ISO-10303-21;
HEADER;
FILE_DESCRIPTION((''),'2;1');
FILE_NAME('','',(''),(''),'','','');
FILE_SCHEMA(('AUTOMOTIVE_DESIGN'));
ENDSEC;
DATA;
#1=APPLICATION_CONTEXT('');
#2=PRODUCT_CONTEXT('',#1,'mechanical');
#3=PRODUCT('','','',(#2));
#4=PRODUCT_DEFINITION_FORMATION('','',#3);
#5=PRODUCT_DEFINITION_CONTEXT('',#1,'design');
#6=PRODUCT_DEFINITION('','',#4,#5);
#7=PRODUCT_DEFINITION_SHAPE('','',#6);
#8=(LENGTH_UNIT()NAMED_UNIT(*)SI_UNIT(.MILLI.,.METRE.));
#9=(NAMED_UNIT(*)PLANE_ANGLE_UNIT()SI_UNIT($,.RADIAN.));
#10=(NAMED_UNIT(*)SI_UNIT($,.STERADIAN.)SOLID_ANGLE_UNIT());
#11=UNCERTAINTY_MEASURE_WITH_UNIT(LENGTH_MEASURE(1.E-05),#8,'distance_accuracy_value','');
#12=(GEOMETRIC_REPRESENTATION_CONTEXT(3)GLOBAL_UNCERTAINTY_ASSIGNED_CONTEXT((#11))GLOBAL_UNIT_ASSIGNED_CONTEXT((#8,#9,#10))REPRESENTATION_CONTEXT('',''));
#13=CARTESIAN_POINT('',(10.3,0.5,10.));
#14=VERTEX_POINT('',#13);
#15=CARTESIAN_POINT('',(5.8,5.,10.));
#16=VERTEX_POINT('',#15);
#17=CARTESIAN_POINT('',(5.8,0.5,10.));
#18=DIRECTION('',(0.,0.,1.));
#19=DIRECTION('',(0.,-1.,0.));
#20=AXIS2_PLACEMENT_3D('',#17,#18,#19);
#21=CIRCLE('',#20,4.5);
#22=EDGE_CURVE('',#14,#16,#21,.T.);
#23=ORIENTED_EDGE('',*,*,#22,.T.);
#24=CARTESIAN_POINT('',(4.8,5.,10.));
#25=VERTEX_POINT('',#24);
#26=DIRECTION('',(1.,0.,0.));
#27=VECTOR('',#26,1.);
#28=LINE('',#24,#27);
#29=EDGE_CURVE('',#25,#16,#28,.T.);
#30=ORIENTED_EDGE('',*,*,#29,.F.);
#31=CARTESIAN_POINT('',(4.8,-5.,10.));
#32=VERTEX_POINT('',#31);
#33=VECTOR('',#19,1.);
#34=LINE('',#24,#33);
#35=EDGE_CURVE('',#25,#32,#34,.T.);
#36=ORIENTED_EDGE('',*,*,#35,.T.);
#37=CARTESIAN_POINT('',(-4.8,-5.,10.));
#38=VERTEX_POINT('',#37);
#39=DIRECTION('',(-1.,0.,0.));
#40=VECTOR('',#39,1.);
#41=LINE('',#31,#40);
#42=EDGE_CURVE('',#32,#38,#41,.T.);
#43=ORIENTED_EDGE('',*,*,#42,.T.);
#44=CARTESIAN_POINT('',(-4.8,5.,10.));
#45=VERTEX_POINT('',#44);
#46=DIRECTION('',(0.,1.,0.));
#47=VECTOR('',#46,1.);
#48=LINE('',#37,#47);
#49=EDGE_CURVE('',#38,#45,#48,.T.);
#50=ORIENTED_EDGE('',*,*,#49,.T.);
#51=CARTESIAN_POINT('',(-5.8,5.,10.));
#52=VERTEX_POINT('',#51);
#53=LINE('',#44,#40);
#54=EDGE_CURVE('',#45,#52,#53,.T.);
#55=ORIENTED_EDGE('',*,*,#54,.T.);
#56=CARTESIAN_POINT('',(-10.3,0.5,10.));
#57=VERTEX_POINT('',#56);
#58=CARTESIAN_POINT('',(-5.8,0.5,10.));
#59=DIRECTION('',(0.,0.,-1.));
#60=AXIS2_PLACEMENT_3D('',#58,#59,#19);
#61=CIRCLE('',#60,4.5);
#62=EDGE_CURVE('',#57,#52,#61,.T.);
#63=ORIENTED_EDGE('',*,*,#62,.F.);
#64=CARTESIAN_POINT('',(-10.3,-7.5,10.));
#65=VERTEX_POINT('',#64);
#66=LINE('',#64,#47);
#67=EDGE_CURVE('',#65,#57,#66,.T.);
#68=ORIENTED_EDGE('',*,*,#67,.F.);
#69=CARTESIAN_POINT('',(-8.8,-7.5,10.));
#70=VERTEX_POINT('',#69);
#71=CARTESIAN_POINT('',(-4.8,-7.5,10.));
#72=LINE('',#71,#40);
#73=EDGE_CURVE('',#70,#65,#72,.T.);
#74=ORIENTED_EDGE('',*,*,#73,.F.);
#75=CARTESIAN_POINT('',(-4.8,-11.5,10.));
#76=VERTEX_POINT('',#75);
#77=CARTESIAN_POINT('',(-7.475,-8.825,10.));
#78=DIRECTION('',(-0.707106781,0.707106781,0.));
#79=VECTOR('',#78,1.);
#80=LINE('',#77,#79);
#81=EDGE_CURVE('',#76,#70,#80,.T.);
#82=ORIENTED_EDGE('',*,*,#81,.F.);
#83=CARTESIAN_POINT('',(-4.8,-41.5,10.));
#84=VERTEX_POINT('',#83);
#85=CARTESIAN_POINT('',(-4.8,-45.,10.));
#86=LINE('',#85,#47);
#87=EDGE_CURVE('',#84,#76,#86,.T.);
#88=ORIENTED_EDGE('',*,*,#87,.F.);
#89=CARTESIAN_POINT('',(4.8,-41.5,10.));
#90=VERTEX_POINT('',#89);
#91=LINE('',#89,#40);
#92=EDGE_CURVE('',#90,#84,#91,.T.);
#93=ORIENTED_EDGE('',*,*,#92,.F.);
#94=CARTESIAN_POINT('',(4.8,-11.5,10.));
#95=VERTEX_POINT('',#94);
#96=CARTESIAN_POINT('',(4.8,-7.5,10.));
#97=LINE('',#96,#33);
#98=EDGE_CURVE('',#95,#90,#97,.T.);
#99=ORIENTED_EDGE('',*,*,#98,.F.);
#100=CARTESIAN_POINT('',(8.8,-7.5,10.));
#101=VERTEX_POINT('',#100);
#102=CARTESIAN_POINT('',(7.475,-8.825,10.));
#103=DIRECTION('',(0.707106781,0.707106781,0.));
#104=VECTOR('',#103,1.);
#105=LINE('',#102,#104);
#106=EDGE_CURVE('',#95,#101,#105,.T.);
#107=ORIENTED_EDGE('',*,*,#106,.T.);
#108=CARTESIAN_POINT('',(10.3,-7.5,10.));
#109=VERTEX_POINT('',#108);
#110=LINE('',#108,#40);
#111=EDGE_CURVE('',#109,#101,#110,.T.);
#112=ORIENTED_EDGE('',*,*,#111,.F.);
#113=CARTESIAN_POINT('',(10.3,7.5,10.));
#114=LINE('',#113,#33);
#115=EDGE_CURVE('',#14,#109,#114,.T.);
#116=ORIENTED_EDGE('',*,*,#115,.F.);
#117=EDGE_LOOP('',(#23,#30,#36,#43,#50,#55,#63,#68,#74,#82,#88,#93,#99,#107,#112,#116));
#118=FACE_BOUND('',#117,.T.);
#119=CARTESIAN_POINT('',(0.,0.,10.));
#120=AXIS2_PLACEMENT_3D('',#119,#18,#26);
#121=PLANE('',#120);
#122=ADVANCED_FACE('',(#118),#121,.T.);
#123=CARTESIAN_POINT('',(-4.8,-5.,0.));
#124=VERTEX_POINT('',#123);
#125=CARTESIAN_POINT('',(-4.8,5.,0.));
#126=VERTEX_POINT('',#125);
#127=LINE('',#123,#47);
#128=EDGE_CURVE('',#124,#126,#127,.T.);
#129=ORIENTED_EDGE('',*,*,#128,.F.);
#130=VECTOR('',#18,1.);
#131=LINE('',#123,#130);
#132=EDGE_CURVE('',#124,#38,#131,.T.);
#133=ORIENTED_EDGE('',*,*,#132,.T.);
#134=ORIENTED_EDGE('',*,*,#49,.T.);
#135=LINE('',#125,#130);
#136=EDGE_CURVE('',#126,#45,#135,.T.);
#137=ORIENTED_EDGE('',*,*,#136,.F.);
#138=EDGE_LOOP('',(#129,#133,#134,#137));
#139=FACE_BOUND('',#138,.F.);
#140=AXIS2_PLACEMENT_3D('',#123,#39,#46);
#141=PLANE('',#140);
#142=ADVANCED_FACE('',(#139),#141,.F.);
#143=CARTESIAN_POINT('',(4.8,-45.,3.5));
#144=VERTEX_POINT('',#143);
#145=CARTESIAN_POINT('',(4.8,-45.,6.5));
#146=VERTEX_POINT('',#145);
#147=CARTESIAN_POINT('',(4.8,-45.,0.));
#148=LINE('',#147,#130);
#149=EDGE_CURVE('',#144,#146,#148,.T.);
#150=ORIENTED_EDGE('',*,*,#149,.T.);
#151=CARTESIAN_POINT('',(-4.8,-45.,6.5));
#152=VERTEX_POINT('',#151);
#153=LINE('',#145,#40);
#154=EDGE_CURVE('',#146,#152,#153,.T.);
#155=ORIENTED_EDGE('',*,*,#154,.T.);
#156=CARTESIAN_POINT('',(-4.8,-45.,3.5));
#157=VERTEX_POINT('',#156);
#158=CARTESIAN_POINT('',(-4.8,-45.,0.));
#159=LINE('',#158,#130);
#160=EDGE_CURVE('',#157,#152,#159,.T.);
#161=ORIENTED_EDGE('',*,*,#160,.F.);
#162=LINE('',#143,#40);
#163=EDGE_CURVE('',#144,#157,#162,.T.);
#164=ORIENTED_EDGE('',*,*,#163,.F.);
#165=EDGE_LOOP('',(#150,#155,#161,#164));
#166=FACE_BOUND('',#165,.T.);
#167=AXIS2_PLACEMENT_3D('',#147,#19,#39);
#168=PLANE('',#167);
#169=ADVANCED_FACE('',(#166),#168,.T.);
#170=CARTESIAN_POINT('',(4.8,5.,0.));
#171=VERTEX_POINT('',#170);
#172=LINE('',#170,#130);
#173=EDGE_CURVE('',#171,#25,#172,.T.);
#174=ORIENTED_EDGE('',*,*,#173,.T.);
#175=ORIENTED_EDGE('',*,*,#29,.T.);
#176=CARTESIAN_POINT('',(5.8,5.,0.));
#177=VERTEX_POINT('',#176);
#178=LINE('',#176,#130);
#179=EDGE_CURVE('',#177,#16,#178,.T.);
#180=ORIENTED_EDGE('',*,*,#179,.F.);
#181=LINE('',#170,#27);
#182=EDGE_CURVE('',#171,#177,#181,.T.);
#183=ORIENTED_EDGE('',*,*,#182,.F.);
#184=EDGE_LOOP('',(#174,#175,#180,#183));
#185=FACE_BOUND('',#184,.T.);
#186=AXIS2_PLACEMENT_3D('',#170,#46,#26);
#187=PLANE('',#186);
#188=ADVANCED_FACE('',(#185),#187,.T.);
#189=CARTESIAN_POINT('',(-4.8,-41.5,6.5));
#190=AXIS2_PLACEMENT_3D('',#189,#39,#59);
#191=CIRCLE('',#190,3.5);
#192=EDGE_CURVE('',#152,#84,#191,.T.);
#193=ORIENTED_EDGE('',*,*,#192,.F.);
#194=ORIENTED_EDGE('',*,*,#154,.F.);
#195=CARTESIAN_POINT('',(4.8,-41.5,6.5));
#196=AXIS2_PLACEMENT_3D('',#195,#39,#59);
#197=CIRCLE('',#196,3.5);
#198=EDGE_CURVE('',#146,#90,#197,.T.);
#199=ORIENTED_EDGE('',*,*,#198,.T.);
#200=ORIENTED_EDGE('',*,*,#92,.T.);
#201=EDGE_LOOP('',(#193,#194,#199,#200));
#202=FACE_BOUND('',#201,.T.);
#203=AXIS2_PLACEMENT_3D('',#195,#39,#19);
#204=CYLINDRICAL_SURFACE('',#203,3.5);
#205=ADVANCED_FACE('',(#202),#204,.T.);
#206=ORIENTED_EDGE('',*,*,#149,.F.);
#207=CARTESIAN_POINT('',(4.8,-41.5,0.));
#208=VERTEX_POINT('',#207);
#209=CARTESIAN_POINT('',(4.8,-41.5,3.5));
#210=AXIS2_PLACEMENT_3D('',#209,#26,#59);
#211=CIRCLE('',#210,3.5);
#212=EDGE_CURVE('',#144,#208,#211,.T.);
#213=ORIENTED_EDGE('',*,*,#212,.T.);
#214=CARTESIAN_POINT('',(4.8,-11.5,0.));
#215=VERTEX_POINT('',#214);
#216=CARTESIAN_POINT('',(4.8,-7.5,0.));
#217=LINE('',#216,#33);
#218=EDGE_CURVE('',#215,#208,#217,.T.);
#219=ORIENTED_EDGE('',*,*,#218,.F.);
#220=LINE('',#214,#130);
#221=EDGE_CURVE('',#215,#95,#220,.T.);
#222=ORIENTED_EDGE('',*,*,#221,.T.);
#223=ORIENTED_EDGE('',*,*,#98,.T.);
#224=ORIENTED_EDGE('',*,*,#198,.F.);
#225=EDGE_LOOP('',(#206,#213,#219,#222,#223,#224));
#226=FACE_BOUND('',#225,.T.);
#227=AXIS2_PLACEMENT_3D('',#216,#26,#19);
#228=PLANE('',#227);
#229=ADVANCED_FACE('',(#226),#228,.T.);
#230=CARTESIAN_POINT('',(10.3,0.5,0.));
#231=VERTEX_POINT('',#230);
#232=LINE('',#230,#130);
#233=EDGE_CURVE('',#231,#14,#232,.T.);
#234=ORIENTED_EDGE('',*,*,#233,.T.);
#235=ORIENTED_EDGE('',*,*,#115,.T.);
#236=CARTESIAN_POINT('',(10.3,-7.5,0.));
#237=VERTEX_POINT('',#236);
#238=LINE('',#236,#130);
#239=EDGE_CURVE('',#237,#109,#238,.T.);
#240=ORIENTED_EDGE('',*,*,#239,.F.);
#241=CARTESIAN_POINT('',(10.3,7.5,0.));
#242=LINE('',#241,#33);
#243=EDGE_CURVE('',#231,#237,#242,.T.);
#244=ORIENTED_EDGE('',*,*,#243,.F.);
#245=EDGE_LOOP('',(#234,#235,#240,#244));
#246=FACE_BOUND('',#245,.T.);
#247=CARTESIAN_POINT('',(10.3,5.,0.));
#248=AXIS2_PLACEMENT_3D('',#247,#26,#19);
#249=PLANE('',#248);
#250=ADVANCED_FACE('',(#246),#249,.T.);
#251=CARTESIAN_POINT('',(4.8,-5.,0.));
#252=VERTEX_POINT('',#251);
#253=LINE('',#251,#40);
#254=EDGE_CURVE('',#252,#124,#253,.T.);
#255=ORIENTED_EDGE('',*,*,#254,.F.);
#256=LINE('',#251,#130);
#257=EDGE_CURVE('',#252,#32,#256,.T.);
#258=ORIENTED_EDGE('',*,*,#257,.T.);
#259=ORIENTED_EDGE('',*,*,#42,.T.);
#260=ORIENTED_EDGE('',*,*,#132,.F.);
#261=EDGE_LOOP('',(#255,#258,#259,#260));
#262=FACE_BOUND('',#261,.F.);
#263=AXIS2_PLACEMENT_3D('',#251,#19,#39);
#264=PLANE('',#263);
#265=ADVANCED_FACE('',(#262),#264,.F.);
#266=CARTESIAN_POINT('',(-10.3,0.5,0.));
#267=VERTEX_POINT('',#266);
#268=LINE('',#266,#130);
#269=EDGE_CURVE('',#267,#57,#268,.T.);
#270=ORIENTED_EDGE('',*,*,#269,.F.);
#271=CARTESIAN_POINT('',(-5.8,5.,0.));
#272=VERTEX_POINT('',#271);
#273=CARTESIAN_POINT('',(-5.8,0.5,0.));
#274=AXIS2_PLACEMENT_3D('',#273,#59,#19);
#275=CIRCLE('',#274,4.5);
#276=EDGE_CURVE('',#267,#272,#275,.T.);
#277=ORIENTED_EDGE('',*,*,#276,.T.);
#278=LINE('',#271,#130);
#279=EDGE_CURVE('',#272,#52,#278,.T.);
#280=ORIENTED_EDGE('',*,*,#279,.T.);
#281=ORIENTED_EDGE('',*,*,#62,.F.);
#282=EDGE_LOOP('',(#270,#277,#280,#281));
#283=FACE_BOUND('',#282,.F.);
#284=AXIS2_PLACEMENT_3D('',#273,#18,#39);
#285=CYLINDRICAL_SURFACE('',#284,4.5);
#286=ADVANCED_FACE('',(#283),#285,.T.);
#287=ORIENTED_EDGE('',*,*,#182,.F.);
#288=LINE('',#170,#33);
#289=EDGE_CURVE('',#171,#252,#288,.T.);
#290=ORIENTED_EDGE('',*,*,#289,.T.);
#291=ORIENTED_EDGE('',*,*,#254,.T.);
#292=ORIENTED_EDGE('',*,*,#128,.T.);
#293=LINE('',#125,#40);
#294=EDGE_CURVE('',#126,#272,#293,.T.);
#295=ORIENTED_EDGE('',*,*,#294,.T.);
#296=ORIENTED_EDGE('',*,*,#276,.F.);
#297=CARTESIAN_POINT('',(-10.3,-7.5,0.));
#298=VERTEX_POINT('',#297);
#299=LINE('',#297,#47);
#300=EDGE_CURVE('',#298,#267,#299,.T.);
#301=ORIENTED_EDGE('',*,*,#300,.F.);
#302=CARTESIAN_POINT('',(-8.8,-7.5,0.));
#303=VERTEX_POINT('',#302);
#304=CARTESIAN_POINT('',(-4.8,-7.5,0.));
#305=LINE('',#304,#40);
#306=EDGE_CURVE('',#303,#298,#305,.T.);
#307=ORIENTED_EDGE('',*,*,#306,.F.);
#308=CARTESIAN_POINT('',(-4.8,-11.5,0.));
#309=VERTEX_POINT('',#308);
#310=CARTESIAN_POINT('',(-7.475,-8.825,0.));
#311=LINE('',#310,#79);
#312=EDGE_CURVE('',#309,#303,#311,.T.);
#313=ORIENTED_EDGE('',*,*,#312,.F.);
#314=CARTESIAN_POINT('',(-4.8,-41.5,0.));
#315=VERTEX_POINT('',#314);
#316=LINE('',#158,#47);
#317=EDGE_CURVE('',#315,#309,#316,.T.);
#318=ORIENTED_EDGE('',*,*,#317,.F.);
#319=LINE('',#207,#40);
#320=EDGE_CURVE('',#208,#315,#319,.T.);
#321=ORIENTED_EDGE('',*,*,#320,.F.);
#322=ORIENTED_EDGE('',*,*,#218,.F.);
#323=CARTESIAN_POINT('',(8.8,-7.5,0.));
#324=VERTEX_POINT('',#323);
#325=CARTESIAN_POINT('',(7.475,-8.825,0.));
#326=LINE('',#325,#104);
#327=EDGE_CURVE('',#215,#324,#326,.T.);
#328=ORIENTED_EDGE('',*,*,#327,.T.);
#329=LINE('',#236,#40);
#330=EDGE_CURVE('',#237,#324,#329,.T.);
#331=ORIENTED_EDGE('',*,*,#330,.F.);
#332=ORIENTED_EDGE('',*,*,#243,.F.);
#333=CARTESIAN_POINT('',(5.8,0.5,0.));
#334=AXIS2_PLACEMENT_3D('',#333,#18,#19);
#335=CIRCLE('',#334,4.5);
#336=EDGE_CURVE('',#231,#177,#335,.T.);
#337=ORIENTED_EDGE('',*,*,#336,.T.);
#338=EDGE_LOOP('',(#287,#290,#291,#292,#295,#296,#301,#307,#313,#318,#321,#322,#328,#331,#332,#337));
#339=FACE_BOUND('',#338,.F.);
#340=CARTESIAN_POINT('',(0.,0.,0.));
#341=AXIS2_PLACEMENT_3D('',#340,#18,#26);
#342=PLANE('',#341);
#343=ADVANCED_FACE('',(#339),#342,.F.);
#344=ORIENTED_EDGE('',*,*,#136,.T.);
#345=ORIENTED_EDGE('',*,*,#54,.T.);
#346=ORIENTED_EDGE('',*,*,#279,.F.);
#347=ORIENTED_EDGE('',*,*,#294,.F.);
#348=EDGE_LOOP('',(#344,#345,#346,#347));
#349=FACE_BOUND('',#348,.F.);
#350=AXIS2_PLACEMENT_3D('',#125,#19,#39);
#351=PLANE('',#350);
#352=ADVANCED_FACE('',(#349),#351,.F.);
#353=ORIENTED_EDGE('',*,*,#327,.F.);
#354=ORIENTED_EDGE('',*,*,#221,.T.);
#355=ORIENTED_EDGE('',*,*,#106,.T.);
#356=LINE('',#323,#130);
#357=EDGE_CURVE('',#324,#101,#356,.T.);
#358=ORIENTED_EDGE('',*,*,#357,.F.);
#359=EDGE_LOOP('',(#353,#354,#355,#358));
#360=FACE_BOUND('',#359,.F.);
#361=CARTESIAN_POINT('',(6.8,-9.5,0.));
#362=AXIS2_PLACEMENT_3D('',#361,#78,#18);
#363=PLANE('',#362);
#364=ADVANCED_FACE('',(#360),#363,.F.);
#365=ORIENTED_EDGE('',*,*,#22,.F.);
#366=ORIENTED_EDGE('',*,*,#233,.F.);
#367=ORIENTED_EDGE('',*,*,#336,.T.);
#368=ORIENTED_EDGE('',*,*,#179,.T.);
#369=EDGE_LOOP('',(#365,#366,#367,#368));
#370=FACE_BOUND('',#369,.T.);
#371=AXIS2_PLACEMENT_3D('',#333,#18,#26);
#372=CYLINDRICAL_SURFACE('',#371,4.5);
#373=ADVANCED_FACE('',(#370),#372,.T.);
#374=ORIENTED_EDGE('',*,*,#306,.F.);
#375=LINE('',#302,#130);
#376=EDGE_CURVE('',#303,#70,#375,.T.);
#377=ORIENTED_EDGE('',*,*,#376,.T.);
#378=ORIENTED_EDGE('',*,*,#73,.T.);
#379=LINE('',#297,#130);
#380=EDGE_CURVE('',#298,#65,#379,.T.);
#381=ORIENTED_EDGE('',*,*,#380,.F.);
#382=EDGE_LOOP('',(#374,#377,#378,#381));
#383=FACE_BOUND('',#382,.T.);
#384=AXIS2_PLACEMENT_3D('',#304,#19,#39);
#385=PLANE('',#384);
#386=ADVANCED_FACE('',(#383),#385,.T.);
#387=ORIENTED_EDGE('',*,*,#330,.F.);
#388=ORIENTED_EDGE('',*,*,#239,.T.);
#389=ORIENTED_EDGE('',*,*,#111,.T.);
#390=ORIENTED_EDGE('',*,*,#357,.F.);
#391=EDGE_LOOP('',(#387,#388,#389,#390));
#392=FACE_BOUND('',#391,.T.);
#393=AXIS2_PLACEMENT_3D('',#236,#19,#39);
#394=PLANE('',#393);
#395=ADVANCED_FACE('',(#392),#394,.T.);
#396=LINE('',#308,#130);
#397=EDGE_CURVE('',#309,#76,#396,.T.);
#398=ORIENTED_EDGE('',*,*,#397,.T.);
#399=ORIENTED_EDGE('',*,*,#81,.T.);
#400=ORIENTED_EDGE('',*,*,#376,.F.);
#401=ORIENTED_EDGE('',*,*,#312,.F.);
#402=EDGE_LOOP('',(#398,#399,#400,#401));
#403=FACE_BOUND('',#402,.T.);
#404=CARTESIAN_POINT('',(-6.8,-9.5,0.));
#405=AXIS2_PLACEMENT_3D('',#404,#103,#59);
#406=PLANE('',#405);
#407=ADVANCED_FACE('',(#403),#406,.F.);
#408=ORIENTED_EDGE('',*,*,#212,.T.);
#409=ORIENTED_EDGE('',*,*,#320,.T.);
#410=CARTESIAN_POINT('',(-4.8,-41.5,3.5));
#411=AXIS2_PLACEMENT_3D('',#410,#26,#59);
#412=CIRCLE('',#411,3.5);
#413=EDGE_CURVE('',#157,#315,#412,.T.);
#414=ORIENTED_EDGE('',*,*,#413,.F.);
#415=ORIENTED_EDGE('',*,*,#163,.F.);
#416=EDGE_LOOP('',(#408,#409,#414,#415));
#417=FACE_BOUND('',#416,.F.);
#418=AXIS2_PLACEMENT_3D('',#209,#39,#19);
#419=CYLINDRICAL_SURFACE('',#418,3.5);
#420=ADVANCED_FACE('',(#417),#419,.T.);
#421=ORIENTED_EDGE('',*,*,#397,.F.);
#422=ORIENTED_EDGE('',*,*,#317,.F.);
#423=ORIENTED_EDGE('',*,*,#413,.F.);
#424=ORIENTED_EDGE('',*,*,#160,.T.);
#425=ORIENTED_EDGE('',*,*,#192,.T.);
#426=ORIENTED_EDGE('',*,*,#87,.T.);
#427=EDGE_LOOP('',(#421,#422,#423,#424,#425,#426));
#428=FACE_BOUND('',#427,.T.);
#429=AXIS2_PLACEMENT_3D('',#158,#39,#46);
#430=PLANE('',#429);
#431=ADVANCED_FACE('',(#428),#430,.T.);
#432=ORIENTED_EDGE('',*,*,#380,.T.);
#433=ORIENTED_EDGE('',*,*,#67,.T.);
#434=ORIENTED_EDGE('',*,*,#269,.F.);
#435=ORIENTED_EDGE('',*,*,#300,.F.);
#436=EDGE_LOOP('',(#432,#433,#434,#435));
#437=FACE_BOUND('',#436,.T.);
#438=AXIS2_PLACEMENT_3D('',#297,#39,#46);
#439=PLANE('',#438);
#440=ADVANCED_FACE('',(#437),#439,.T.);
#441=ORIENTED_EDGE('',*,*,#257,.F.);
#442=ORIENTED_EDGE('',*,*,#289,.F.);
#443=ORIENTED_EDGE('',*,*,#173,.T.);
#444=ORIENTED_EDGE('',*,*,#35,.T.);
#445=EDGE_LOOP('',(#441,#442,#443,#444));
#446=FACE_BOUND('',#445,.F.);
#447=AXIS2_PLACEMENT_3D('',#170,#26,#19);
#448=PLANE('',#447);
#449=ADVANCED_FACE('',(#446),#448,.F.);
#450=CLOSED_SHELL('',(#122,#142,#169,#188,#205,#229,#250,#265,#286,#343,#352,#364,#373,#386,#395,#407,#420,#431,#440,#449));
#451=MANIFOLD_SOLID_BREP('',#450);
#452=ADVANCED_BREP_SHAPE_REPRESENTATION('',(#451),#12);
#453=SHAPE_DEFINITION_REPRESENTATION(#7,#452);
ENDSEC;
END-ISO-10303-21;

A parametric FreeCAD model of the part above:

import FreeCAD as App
import Part
import Sketcher
Q = App.Units.Quantity


def edges_at(feature, points):
    """Names of the edges that pass closest to the given points."""
    edges = feature.Shape.Edges
    near = lambda p: min(range(len(edges)), key=lambda i: edges[i].distToShape(Part.Vertex(*p))[0])
    return sorted({f"Edge{near(p) + 1}" for p in points})

doc = App.newDocument("Part")
params = doc.addObject("Spreadsheet::Sheet", "Params")
for row, (alias, value) in enumerate([
    ("sketch1_width", "9.6 mm"),
    ("sketch1_height", "10 mm"),
    ("sketch1_width2", "5.5 mm"),
    ("sketch1_height2", "12.5 mm"),
    ("pad1_length", "10 mm"),
    ("fillet_radius", "3.5 mm"),
    ("chamfer_size", "4 mm"),
    ("fillet2_radius", "4.5 mm"),
], start=1):
    params.set(f"A{row}", alias)
    params.set(f"B{row}", "=" + value)
    params.setAlias(f"B{row}", alias)

body = doc.addObject("PartDesign::Body", "Body")

sketch1 = doc.addObject("Sketcher::SketchObject", "Sketch")
body.addObject(sketch1)
sketch1.AttachmentSupport = (doc.XY_Plane, [""])
sketch1.MapMode = "FlatFace"
sketch1.addGeometry([
    Part.LineSegment(App.Vector(5, 5, 0), App.Vector(5, -5, 0)),
    Part.LineSegment(App.Vector(5, -5, 0), App.Vector(-5, -5, 0)),
    Part.LineSegment(App.Vector(-5, -5, 0), App.Vector(-5, 5, 0)),
    Part.LineSegment(App.Vector(-5, 5, 0), App.Vector(-10, 5, 0)),
    Part.LineSegment(App.Vector(-10, 5, 0), App.Vector(-10, -8, 0)),
    Part.LineSegment(App.Vector(-10, -8, 0), App.Vector(-5, -8, 0)),
    Part.LineSegment(App.Vector(-5, -8, 0), App.Vector(-5, -45, 0)),
    Part.LineSegment(App.Vector(-5, -45, 0), App.Vector(5, -45, 0)),
    Part.LineSegment(App.Vector(5, -45, 0), App.Vector(5, -8, 0)),
    Part.LineSegment(App.Vector(5, -8, 0), App.Vector(10, -8, 0)),
    Part.LineSegment(App.Vector(10, -8, 0), App.Vector(10, 5, 0)),
    Part.LineSegment(App.Vector(10, 5, 0), App.Vector(5, 5, 0)),
], False)
sketch1.addConstraint([
    Sketcher.Constraint("Coincident", 0, 2, 1, 1),
    Sketcher.Constraint("Coincident", 1, 2, 2, 1),
    Sketcher.Constraint("Coincident", 2, 2, 3, 1),
    Sketcher.Constraint("Coincident", 3, 2, 4, 1),
    Sketcher.Constraint("Coincident", 4, 2, 5, 1),
    Sketcher.Constraint("Coincident", 5, 2, 6, 1),
    Sketcher.Constraint("Coincident", 6, 2, 7, 1),
    Sketcher.Constraint("Coincident", 7, 2, 8, 1),
    Sketcher.Constraint("Coincident", 8, 2, 9, 1),
    Sketcher.Constraint("Coincident", 9, 2, 10, 1),
    Sketcher.Constraint("Coincident", 10, 2, 11, 1),
    Sketcher.Constraint("Coincident", 11, 2, 0, 1),
    Sketcher.Constraint("Vertical", 0),
    Sketcher.Constraint("Horizontal", 1),
    Sketcher.Constraint("Vertical", 2),
    Sketcher.Constraint("Horizontal", 3),
    Sketcher.Constraint("Vertical", 4),
    Sketcher.Constraint("Horizontal", 5),
    Sketcher.Constraint("Vertical", 6),
    Sketcher.Constraint("Horizontal", 7),
    Sketcher.Constraint("Vertical", 8),
    Sketcher.Constraint("Horizontal", 9),
    Sketcher.Constraint("Vertical", 10),
    Sketcher.Constraint("Horizontal", 11),
    Sketcher.Constraint("Symmetric", 0, 2, 2, 2, -1, 1),
    Sketcher.Constraint("Symmetric", 5, 2, 8, 2, -2),
    Sketcher.Constraint("Symmetric", 3, 2, 10, 2, -2),
    Sketcher.Constraint("Vertical", 2, 2, 5, 2),
    Sketcher.Constraint("DistanceX", 1, 2, 1, 1, Q("9.6 mm")),
    Sketcher.Constraint("DistanceY", 6, 2, 1, 2, Q("40 mm")),
    Sketcher.Constraint("DistanceY", 0, 2, 0, 1, Q("10 mm")),
    Sketcher.Constraint("DistanceX", 3, 2, 3, 1, Q("5.5 mm")),
    Sketcher.Constraint("DistanceY", 4, 2, 4, 1, Q("12.5 mm")),
])
sketch1.setExpression("Constraints[28]", "Params.sketch1_width")
sketch1.setExpression("Constraints[30]", "Params.sketch1_height")
sketch1.setExpression("Constraints[31]", "Params.sketch1_width2")
sketch1.setExpression("Constraints[32]", "Params.sketch1_height2")
pad1 = doc.addObject("PartDesign::Pad", "Pad")
body.addObject(pad1)
pad1.Profile = sketch1
pad1.setExpression("Length", "Params.pad1_length")
doc.recompute()

fillet = doc.addObject("PartDesign::Fillet", "Fillet")
body.addObject(fillet)
fillet.Base = (pad1, edges_at(pad1, [(0, -45, 10), (0, -45, 0)]))
fillet.setExpression("Radius", "Params.fillet_radius")
doc.recompute()

chamfer = doc.addObject("PartDesign::Chamfer", "Chamfer")
body.addObject(chamfer)
chamfer.Base = (fillet, edges_at(fillet, [(-4.8, -7.5, 5), (4.8, -7.5, 5)]))
chamfer.setExpression("Size", "Params.chamfer_size")
doc.recompute()

fillet2 = doc.addObject("PartDesign::Fillet", "Fillet001")
body.addObject(fillet2)
fillet2.Base = (chamfer, edges_at(chamfer, [(10.3, 5, 5), (-10.3, 5, 5)]))
fillet2.setExpression("Radius", "Params.fillet2_radius")

doc.recompute()
